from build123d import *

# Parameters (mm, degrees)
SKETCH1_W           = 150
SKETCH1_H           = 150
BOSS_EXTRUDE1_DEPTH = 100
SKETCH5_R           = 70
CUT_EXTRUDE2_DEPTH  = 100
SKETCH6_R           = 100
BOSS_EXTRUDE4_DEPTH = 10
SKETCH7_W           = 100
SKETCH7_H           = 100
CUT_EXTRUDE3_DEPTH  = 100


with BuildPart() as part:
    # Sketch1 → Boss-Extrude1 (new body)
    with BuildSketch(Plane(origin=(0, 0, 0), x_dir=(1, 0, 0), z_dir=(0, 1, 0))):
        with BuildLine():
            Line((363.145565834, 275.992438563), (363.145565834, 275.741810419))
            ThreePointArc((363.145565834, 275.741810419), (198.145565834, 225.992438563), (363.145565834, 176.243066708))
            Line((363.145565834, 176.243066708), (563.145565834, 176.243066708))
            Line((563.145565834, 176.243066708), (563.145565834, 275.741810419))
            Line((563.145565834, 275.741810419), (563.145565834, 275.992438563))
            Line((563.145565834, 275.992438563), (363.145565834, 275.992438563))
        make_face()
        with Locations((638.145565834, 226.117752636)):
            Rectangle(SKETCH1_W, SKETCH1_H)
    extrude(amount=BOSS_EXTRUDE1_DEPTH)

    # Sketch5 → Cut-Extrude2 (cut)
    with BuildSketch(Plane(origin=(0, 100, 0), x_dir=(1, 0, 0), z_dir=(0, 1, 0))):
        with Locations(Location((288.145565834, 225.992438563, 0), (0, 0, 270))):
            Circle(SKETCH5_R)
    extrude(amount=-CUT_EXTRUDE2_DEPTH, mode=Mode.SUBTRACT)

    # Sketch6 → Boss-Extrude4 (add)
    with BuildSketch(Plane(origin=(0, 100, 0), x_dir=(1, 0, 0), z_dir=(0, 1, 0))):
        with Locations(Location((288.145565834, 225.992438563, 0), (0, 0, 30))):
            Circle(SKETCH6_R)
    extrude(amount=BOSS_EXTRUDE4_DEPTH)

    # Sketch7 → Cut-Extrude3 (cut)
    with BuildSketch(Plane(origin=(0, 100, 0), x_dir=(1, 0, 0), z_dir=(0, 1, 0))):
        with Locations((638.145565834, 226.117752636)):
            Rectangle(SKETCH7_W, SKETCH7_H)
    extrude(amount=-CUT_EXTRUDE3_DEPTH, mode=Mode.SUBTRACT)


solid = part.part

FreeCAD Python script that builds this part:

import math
import FreeCAD as App
import Part
import Sketcher
from FreeCAD import Vector
Q = App.Units.Quantity

doc = App.newDocument("Part")
body = doc.addObject("PartDesign::Body", "Body")

# Sketch on XZ plane
sketch1 = body.newObject("Sketcher::SketchObject", "Sketch")
sketch1.AttachmentSupport = (doc.getObject("XZ_Plane"), [""])
sketch1.MapMode = "FlatFace"
sketch1.addGeometry([
    Part.LineSegment(Vector(363.145566, -275.992439, 0), Vector(363.145566, -275.74181, 0)),  # 0
    Part.ArcOfCircle(Part.Circle(Vector(288.145566, -225.992439, 0), Vector(0, 0, 1), 90), math.radians(33.55731), math.radians(326.44269)),  # 1
    Part.LineSegment(Vector(363.145566, -176.243067, 0), Vector(563.145566, -176.243067, 0)),  # 2
    Part.LineSegment(Vector(563.145566, -176.243067, 0), Vector(563.145566, -151.117753, 0)),  # 3
    Part.LineSegment(Vector(563.145566, -151.117753, 0), Vector(713.145566, -151.117753, 0)),  # 4
    Part.LineSegment(Vector(713.145566, -151.117753, 0), Vector(713.145566, -301.117753, 0)),  # 5
    Part.LineSegment(Vector(713.145566, -301.117753, 0), Vector(563.145566, -301.117753, 0)),  # 6
    Part.LineSegment(Vector(563.145566, -301.117753, 0), Vector(563.145566, -275.992439, 0)),  # 7
    Part.LineSegment(Vector(563.145566, -275.992439, 0), Vector(363.145566, -275.992439, 0)),  # 8
], False)
sketch1.addConstraint([
    Sketcher.Constraint("Coincident", 0, 2, 1, 2),
    Sketcher.Constraint("Coincident", 1, 1, 2, 1),
    Sketcher.Constraint("Coincident", 2, 2, 3, 1),
    Sketcher.Constraint("Coincident", 3, 2, 4, 1),
    Sketcher.Constraint("Coincident", 4, 2, 5, 1),
    Sketcher.Constraint("Coincident", 5, 2, 6, 1),
    Sketcher.Constraint("Coincident", 6, 2, 7, 1),
    Sketcher.Constraint("Coincident", 7, 2, 8, 1),
    Sketcher.Constraint("Coincident", 8, 2, 0, 1),
    Sketcher.Constraint("Vertical", 0),
    Sketcher.Constraint("Horizontal", 2),
    Sketcher.Constraint("Vertical", 3),
    Sketcher.Constraint("Horizontal", 4),
    Sketcher.Constraint("Vertical", 5),
    Sketcher.Constraint("Horizontal", 6),
    Sketcher.Constraint("Vertical", 7),
    Sketcher.Constraint("Horizontal", 8),
    Sketcher.Constraint("Vertical", 0, 2, 1, 1),
    Sketcher.Constraint("Vertical", 3, 2, 6, 2),
    Sketcher.Constraint("Equal", 6, 5),
    Sketcher.Constraint("Equal", 3, 7),
    Sketcher.Constraint("Radius", 1, Q("90 mm")),
    Sketcher.Constraint("DistanceX", 2, 1, 2, 2, Q("200 mm")),
    Sketcher.Constraint("DistanceX", 4, 1, 4, 2, Q("150 mm")),
    Sketcher.Constraint("DistanceX", 1, 3, 0, 2, Q("75 mm")),
    Sketcher.Constraint("DistanceY", 8, 2, 1, 3, Q("50 mm")),
    Sketcher.Constraint("DistanceY", 1, 3, -1, 1, Q("225.992439 mm")),
    Sketcher.Constraint("DistanceX", -1, 1, 1, 3, Q("288.145566 mm")),
])
pad1 = body.newObject("PartDesign::Pad", "Pad")
pad1.Profile = sketch1
pad1.Length = 100
pad1.Reversed = True

# Sketch on XZ plane
sketch2 = body.newObject("Sketcher::SketchObject", "Sketch001")
sketch2.AttachmentSupport = (doc.getObject("XZ_Plane"), [""])
sketch2.MapMode = "FlatFace"
sketch2.AttachmentOffset = App.Placement(Vector(0, 0, -100), App.Rotation())
sketch2.addGeometry(Part.Circle(Vector(288.145566, -225.992439, 0), Vector(0, 0, 1), 70), False)
sketch2.addConstraint([
    Sketcher.Constraint("Diameter", 0, Q("140 mm")),
    Sketcher.Constraint("DistanceY", 0, 3, -1, 1, Q("225.992439 mm")),
    Sketcher.Constraint("DistanceX", -1, 1, 0, 3, Q("288.145566 mm")),
])
pocket1 = body.newObject("PartDesign::Pocket", "Pocket")
pocket1.Profile = sketch2
pocket1.Length = 100
pocket1.Reversed = True

# Sketch on XZ plane
sketch3 = body.newObject("Sketcher::SketchObject", "Sketch002")
sketch3.AttachmentSupport = (doc.getObject("XZ_Plane"), [""])
sketch3.MapMode = "FlatFace"
sketch3.AttachmentOffset = App.Placement(Vector(0, 0, -100), App.Rotation())
sketch3.addGeometry(Part.Circle(Vector(288.145566, -225.992439, 0), Vector(0, 0, 1), 100), False)
sketch3.addConstraint([
    Sketcher.Constraint("Diameter", 0, Q("200 mm")),
    Sketcher.Constraint("DistanceY", 0, 3, -1, 1, Q("225.992439 mm")),
    Sketcher.Constraint("DistanceX", -1, 1, 0, 3, Q("288.145566 mm")),
])
pad2 = body.newObject("PartDesign::Pad", "Pad001")
pad2.Profile = sketch3
pad2.Length = 10
pad2.Reversed = True

# Sketch on XZ plane
sketch4 = body.newObject("Sketcher::SketchObject", "Sketch003")
sketch4.AttachmentSupport = (doc.getObject("XZ_Plane"), [""])
sketch4.MapMode = "FlatFace"
sketch4.AttachmentOffset = App.Placement(Vector(0, 0, -100), App.Rotation())
sketch4.addGeometry([
    Part.LineSegment(Vector(588.145566, -276.117753, 0), Vector(588.145566, -176.117753, 0)),
    Part.LineSegment(Vector(588.145566, -176.117753, 0), Vector(688.145566, -176.117753, 0)),
    Part.LineSegment(Vector(688.145566, -176.117753, 0), Vector(688.145566, -276.117753, 0)),
    Part.LineSegment(Vector(688.145566, -276.117753, 0), Vector(588.145566, -276.117753, 0)),
], False)
sketch4.addConstraint([
    Sketcher.Constraint("Coincident", 0, 2, 1, 1),
    Sketcher.Constraint("Coincident", 1, 2, 2, 1),
    Sketcher.Constraint("Coincident", 2, 2, 3, 1),
    Sketcher.Constraint("Coincident", 3, 2, 0, 1),
    Sketcher.Constraint("Vertical", 0),
    Sketcher.Constraint("Horizontal", 1),
    Sketcher.Constraint("Vertical", 2),
    Sketcher.Constraint("Horizontal", 3),
    Sketcher.Constraint("Equal", 3, 0),
    Sketcher.Constraint("DistanceX", 1, 1, 1, 2, Q("100 mm")),
    Sketcher.Constraint("DistanceX", -1, 1, 0, 2, Q("588.145566 mm")),
    Sketcher.Constraint("DistanceY", 0, 2, -1, 1, Q("176.117753 mm")),
])
pocket2 = body.newObject("PartDesign::Pocket", "Pocket001")
pocket2.Profile = sketch4
pocket2.Length = 100
pocket2.Reversed = True

doc.recompute()
